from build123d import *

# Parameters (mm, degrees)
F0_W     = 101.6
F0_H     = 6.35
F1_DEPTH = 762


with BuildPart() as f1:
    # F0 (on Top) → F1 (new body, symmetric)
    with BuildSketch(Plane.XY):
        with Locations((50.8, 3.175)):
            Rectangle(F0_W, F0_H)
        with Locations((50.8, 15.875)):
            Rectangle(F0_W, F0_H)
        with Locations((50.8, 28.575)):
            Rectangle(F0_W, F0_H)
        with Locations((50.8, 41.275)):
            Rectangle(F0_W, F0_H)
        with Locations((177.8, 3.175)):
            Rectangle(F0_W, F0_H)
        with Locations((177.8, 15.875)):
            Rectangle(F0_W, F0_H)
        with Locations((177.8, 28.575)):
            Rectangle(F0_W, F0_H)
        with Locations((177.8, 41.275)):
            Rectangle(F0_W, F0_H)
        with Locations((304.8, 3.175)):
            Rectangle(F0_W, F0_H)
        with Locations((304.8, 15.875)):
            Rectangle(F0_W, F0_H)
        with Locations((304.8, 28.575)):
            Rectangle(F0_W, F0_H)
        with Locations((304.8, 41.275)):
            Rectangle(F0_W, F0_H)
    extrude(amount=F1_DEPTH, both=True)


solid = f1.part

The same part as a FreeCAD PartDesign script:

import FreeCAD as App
import Part
import Sketcher

V = App.Vector
Q = App.Units.Quantity

doc = App.newDocument("Part")
body = doc.addObject("PartDesign::Body", "Body")
body.AllowCompound = True

sketch1 = body.newObject("Sketcher::SketchObject", "Sketch")
sketch1.AttachmentSupport = (doc.getObject("XY_Plane"), [""])
sketch1.MapMode = "FlatFace"
sketch1.addGeometry(Part.LineSegment(V(0, 6.35, 0), V(0, 0, 0)), False)
sketch1.addGeometry(Part.LineSegment(V(0, 0, 0), V(101.6, 0, 0)), False)
sketch1.addGeometry(Part.LineSegment(V(101.6, 0, 0), V(101.6, 6.35, 0)), False)
sketch1.addGeometry(Part.LineSegment(V(101.6, 6.35, 0), V(0, 6.35, 0)), False)
sketch1.addGeometry(Part.LineSegment(V(0, 19.05, 0), V(0, 12.7, 0)), False)
sketch1.addGeometry(Part.LineSegment(V(0, 12.7, 0), V(101.6, 12.7, 0)), False)
sketch1.addGeometry(Part.LineSegment(V(101.6, 12.7, 0), V(101.6, 19.05, 0)), False)
sketch1.addGeometry(Part.LineSegment(V(101.6, 19.05, 0), V(0, 19.05, 0)), False)
sketch1.addGeometry(Part.LineSegment(V(0, 31.75, 0), V(0, 25.4, 0)), False)
sketch1.addGeometry(Part.LineSegment(V(0, 25.4, 0), V(101.6, 25.4, 0)), False)
sketch1.addGeometry(Part.LineSegment(V(101.6, 25.4, 0), V(101.6, 31.75, 0)), False)
sketch1.addGeometry(Part.LineSegment(V(101.6, 31.75, 0), V(0, 31.75, 0)), False)
sketch1.addGeometry(Part.LineSegment(V(0, 44.45, 0), V(0, 38.1, 0)), False)
sketch1.addGeometry(Part.LineSegment(V(0, 38.1, 0), V(101.6, 38.1, 0)), False)
sketch1.addGeometry(Part.LineSegment(V(101.6, 38.1, 0), V(101.6, 44.45, 0)), False)
sketch1.addGeometry(Part.LineSegment(V(101.6, 44.45, 0), V(0, 44.45, 0)), False)
sketch1.addGeometry(Part.LineSegment(V(127, 6.35, 0), V(127, 0, 0)), False)
sketch1.addGeometry(Part.LineSegment(V(127, 0, 0), V(228.6, 0, 0)), False)
sketch1.addGeometry(Part.LineSegment(V(228.6, 0, 0), V(228.6, 6.35, 0)), False)
sketch1.addGeometry(Part.LineSegment(V(228.6, 6.35, 0), V(127, 6.35, 0)), False)
sketch1.addGeometry(Part.LineSegment(V(127, 19.05, 0), V(127, 12.7, 0)), False)
sketch1.addGeometry(Part.LineSegment(V(127, 12.7, 0), V(228.6, 12.7, 0)), False)
sketch1.addGeometry(Part.LineSegment(V(228.6, 12.7, 0), V(228.6, 19.05, 0)), False)
sketch1.addGeometry(Part.LineSegment(V(228.6, 19.05, 0), V(127, 19.05, 0)), False)
sketch1.addGeometry(Part.LineSegment(V(127, 31.75, 0), V(127, 25.4, 0)), False)
sketch1.addGeometry(Part.LineSegment(V(127, 25.4, 0), V(228.6, 25.4, 0)), False)
sketch1.addGeometry(Part.LineSegment(V(228.6, 25.4, 0), V(228.6, 31.75, 0)), False)
sketch1.addGeometry(Part.LineSegment(V(228.6, 31.75, 0), V(127, 31.75, 0)), False)
sketch1.addGeometry(Part.LineSegment(V(127, 44.45, 0), V(127, 38.1, 0)), False)
sketch1.addGeometry(Part.LineSegment(V(127, 38.1, 0), V(228.6, 38.1, 0)), False)
sketch1.addGeometry(Part.LineSegment(V(228.6, 38.1, 0), V(228.6, 44.45, 0)), False)
sketch1.addGeometry(Part.LineSegment(V(228.6, 44.45, 0), V(127, 44.45, 0)), False)
sketch1.addGeometry(Part.LineSegment(V(254, 6.35, 0), V(254, 0, 0)), False)
sketch1.addGeometry(Part.LineSegment(V(254, 0, 0), V(355.6, 0, 0)), False)
sketch1.addGeometry(Part.LineSegment(V(355.6, 0, 0), V(355.6, 6.35, 0)), False)
sketch1.addGeometry(Part.LineSegment(V(355.6, 6.35, 0), V(254, 6.35, 0)), False)
sketch1.addGeometry(Part.LineSegment(V(254, 19.05, 0), V(254, 12.7, 0)), False)
sketch1.addGeometry(Part.LineSegment(V(254, 12.7, 0), V(355.6, 12.7, 0)), False)
sketch1.addGeometry(Part.LineSegment(V(355.6, 12.7, 0), V(355.6, 19.05, 0)), False)
sketch1.addGeometry(Part.LineSegment(V(355.6, 19.05, 0), V(254, 19.05, 0)), False)
sketch1.addGeometry(Part.LineSegment(V(254, 31.75, 0), V(254, 25.4, 0)), False)
sketch1.addGeometry(Part.LineSegment(V(254, 25.4, 0), V(355.6, 25.4, 0)), False)
sketch1.addGeometry(Part.LineSegment(V(355.6, 25.4, 0), V(355.6, 31.75, 0)), False)
sketch1.addGeometry(Part.LineSegment(V(355.6, 31.75, 0), V(254, 31.75, 0)), False)
sketch1.addGeometry(Part.LineSegment(V(254, 44.45, 0), V(254, 38.1, 0)), False)
sketch1.addGeometry(Part.LineSegment(V(254, 38.1, 0), V(355.6, 38.1, 0)), False)
sketch1.addGeometry(Part.LineSegment(V(355.6, 38.1, 0), V(355.6, 44.45, 0)), False)
sketch1.addGeometry(Part.LineSegment(V(355.6, 44.45, 0), V(254, 44.45, 0)), False)
sketch1.addConstraint(Sketcher.Constraint("Coincident", 0, 2, 1, 1))
sketch1.addConstraint(Sketcher.Constraint("Coincident", 1, 2, 2, 1))
sketch1.addConstraint(Sketcher.Constraint("Coincident", 2, 2, 3, 1))
sketch1.addConstraint(Sketcher.Constraint("Coincident", 3, 2, 0, 1))
sketch1.addConstraint(Sketcher.Constraint("Coincident", 4, 2, 5, 1))
sketch1.addConstraint(Sketcher.Constraint("Coincident", 5, 2, 6, 1))
sketch1.addConstraint(Sketcher.Constraint("Coincident", 6, 2, 7, 1))
sketch1.addConstraint(Sketcher.Constraint("Coincident", 7, 2, 4, 1))
sketch1.addConstraint(Sketcher.Constraint("Coincident", 8, 2, 9, 1))
sketch1.addConstraint(Sketcher.Constraint("Coincident", 9, 2, 10, 1))
sketch1.addConstraint(Sketcher.Constraint("Coincident", 10, 2, 11, 1))
sketch1.addConstraint(Sketcher.Constraint("Coincident", 11, 2, 8, 1))
sketch1.addConstraint(Sketcher.Constraint("Coincident", 12, 2, 13, 1))
sketch1.addConstraint(Sketcher.Constraint("Coincident", 13, 2, 14, 1))
sketch1.addConstraint(Sketcher.Constraint("Coincident", 14, 2, 15, 1))
sketch1.addConstraint(Sketcher.Constraint("Coincident", 15, 2, 12, 1))
sketch1.addConstraint(Sketcher.Constraint("Coincident", 16, 2, 17, 1))
sketch1.addConstraint(Sketcher.Constraint("Coincident", 17, 2, 18, 1))
sketch1.addConstraint(Sketcher.Constraint("Coincident", 18, 2, 19, 1))
sketch1.addConstraint(Sketcher.Constraint("Coincident", 19, 2, 16, 1))
sketch1.addConstraint(Sketcher.Constraint("Coincident", 20, 2, 21, 1))
sketch1.addConstraint(Sketcher.Constraint("Coincident", 21, 2, 22, 1))
sketch1.addConstraint(Sketcher.Constraint("Coincident", 22, 2, 23, 1))
sketch1.addConstraint(Sketcher.Constraint("Coincident", 23, 2, 20, 1))
sketch1.addConstraint(Sketcher.Constraint("Coincident", 24, 2, 25, 1))
sketch1.addConstraint(Sketcher.Constraint("Coincident", 25, 2, 26, 1))
sketch1.addConstraint(Sketcher.Constraint("Coincident", 26, 2, 27, 1))
sketch1.addConstraint(Sketcher.Constraint("Coincident", 27, 2, 24, 1))
sketch1.addConstraint(Sketcher.Constraint("Coincident", 28, 2, 29, 1))
sketch1.addConstraint(Sketcher.Constraint("Coincident", 29, 2, 30, 1))
sketch1.addConstraint(Sketcher.Constraint("Coincident", 30, 2, 31, 1))
sketch1.addConstraint(Sketcher.Constraint("Coincident", 31, 2, 28, 1))
sketch1.addConstraint(Sketcher.Constraint("Coincident", 32, 2, 33, 1))
sketch1.addConstraint(Sketcher.Constraint("Coincident", 33, 2, 34, 1))
sketch1.addConstraint(Sketcher.Constraint("Coincident", 34, 2, 35, 1))
sketch1.addConstraint(Sketcher.Constraint("Coincident", 35, 2, 32, 1))
sketch1.addConstraint(Sketcher.Constraint("Coincident", 36, 2, 37, 1))
sketch1.addConstraint(Sketcher.Constraint("Coincident", 37, 2, 38, 1))
sketch1.addConstraint(Sketcher.Constraint("Coincident", 38, 2, 39, 1))
sketch1.addConstraint(Sketcher.Constraint("Coincident", 39, 2, 36, 1))
sketch1.addConstraint(Sketcher.Constraint("Coincident", 40, 2, 41, 1))
sketch1.addConstraint(Sketcher.Constraint("Coincident", 41, 2, 42, 1))
sketch1.addConstraint(Sketcher.Constraint("Coincident", 42, 2, 43, 1))
sketch1.addConstraint(Sketcher.Constraint("Coincident", 43, 2, 40, 1))
sketch1.addConstraint(Sketcher.Constraint("Coincident", 44, 2, 45, 1))
sketch1.addConstraint(Sketcher.Constraint("Coincident", 45, 2, 46, 1))
sketch1.addConstraint(Sketcher.Constraint("Coincident", 46, 2, 47, 1))
sketch1.addConstraint(Sketcher.Constraint("Coincident", 47, 2, 44, 1))
sketch1.addConstraint(Sketcher.Constraint("Vertical", 0))
sketch1.addConstraint(Sketcher.Constraint("Horizontal", 1))
sketch1.addConstraint(Sketcher.Constraint("Vertical", 2))
sketch1.addConstraint(Sketcher.Constraint("Horizontal", 3))
sketch1.addConstraint(Sketcher.Constraint("Vertical", 4))
sketch1.addConstraint(Sketcher.Constraint("Horizontal", 5))
sketch1.addConstraint(Sketcher.Constraint("Vertical", 6))
sketch1.addConstraint(Sketcher.Constraint("Horizontal", 7))
sketch1.addConstraint(Sketcher.Constraint("Vertical", 8))
sketch1.addConstraint(Sketcher.Constraint("Horizontal", 9))
sketch1.addConstraint(Sketcher.Constraint("Vertical", 10))
sketch1.addConstraint(Sketcher.Constraint("Horizontal", 11))
sketch1.addConstraint(Sketcher.Constraint("Vertical", 12))
sketch1.addConstraint(Sketcher.Constraint("Horizontal", 13))
sketch1.addConstraint(Sketcher.Constraint("Vertical", 14))
sketch1.addConstraint(Sketcher.Constraint("Horizontal", 15))
sketch1.addConstraint(Sketcher.Constraint("Vertical", 16))
sketch1.addConstraint(Sketcher.Constraint("Horizontal", 17))
sketch1.addConstraint(Sketcher.Constraint("Vertical", 18))
sketch1.addConstraint(Sketcher.Constraint("Horizontal", 19))
sketch1.addConstraint(Sketcher.Constraint("Vertical", 20))
sketch1.addConstraint(Sketcher.Constraint("Horizontal", 21))
sketch1.addConstraint(Sketcher.Constraint("Vertical", 22))
sketch1.addConstraint(Sketcher.Constraint("Horizontal", 23))
sketch1.addConstraint(Sketcher.Constraint("Vertical", 24))
sketch1.addConstraint(Sketcher.Constraint("Horizontal", 25))
sketch1.addConstraint(Sketcher.Constraint("Vertical", 26))
sketch1.addConstraint(Sketcher.Constraint("Horizontal", 27))
sketch1.addConstraint(Sketcher.Constraint("Vertical", 28))
sketch1.addConstraint(Sketcher.Constraint("Horizontal", 29))
sketch1.addConstraint(Sketcher.Constraint("Vertical", 30))
sketch1.addConstraint(Sketcher.Constraint("Horizontal", 31))
sketch1.addConstraint(Sketcher.Constraint("Vertical", 32))
sketch1.addConstraint(Sketcher.Constraint("Horizontal", 33))
sketch1.addConstraint(Sketcher.Constraint("Vertical", 34))
sketch1.addConstraint(Sketcher.Constraint("Horizontal", 35))
sketch1.addConstraint(Sketcher.Constraint("Vertical", 36))
sketch1.addConstraint(Sketcher.Constraint("Horizontal", 37))
sketch1.addConstraint(Sketcher.Constraint("Vertical", 38))
sketch1.addConstraint(Sketcher.Constraint("Horizontal", 39))
sketch1.addConstraint(Sketcher.Constraint("Vertical", 40))
sketch1.addConstraint(Sketcher.Constraint("Horizontal", 41))
sketch1.addConstraint(Sketcher.Constraint("Vertical", 42))
sketch1.addConstraint(Sketcher.Constraint("Horizontal", 43))
sketch1.addConstraint(Sketcher.Constraint("Vertical", 44))
sketch1.addConstraint(Sketcher.Constraint("Horizontal", 45))
sketch1.addConstraint(Sketcher.Constraint("Vertical", 46))
sketch1.addConstraint(Sketcher.Constraint("Horizontal", 47))
sketch1.addConstraint(Sketcher.Constraint("Coincident", 0, 2, -1, 1))
sketch1.addConstraint(Sketcher.Constraint("PointOnObject", 4, 2, -2))
sketch1.addConstraint(Sketcher.Constraint("PointOnObject", 8, 2, -2))
sketch1.addConstraint(Sketcher.Constraint("PointOnObject", 12, 2, -2))
sketch1.addConstraint(Sketcher.Constraint("PointOnObject", 16, 2, -1))
sketch1.addConstraint(Sketcher.Constraint("PointOnObject", 32, 2, -1))
sketch1.addConstraint(Sketcher.Constraint("Horizontal", 3, 2, 18, 2))
sketch1.addConstraint(Sketcher.Constraint("Horizontal", 5, 2, 20, 2))
sketch1.addConstraint(Sketcher.Constraint("Horizontal", 7, 2, 22, 2))
sketch1.addConstraint(Sketcher.Constraint("Horizontal", 9, 2, 24, 2))
sketch1.addConstraint(Sketcher.Constraint("Horizontal", 11, 2, 26, 2))
sketch1.addConstraint(Sketcher.Constraint("Horizontal", 13, 2, 28, 2))
sketch1.addConstraint(Sketcher.Constraint("Horizontal", 15, 2, 30, 2))
sketch1.addConstraint(Sketcher.Constraint("Horizontal", 19, 2, 34, 2))
sketch1.addConstraint(Sketcher.Constraint("Horizontal", 21, 2, 36, 2))
sketch1.addConstraint(Sketcher.Constraint("Horizontal", 23, 2, 38, 2))
sketch1.addConstraint(Sketcher.Constraint("Horizontal", 25, 2, 40, 2))
sketch1.addConstraint(Sketcher.Constraint("Horizontal", 27, 2, 42, 2))
sketch1.addConstraint(Sketcher.Constraint("Horizontal", 29, 2, 44, 2))
sketch1.addConstraint(Sketcher.Constraint("Horizontal", 31, 2, 46, 2))
sketch1.addConstraint(Sketcher.Constraint("Vertical", 2, 2, 5, 2))
sketch1.addConstraint(Sketcher.Constraint("Vertical", 6, 2, 9, 2))
sketch1.addConstraint(Sketcher.Constraint("Vertical", 10, 2, 13, 2))
sketch1.addConstraint(Sketcher.Constraint("Vertical", 19, 2, 20, 2))
sketch1.addConstraint(Sketcher.Constraint("Vertical", 18, 2, 21, 2))
sketch1.addConstraint(Sketcher.Constraint("Vertical", 23, 2, 24, 2))
sketch1.addConstraint(Sketcher.Constraint("Vertical", 22, 2, 25, 2))
sketch1.addConstraint(Sketcher.Constraint("Vertical", 27, 2, 28, 2))
sketch1.addConstraint(Sketcher.Constraint("Vertical", 26, 2, 29, 2))
sketch1.addConstraint(Sketcher.Constraint("Vertical", 35, 2, 36, 2))
sketch1.addConstraint(Sketcher.Constraint("Vertical", 34, 2, 37, 2))
sketch1.addConstraint(Sketcher.Constraint("Vertical", 39, 2, 40, 2))
sketch1.addConstraint(Sketcher.Constraint("Vertical", 38, 2, 41, 2))
sketch1.addConstraint(Sketcher.Constraint("Vertical", 43, 2, 44, 2))
sketch1.addConstraint(Sketcher.Constraint("Vertical", 42, 2, 45, 2))
sketch1.addConstraint(Sketcher.Constraint("Equal", 15, 17))
sketch1.addConstraint(Sketcher.Constraint("Equal", 31, 33))
sketch1.addConstraint(Sketcher.Constraint("Equal", 2, 4))
sketch1.addConstraint(Sketcher.Constraint("Equal", 6, 8))
sketch1.addConstraint(Sketcher.Constraint("Equal", 10, 12))
sketch1.addConstraint(Sketcher.Constraint("DistanceX", 1, 1, 1, 2, Q("4 in")))
sketch1.addConstraint(Sketcher.Constraint("DistanceY", -1, 1, 8, 2, Q("1 in")))
sketch1.addConstraint(Sketcher.Constraint("DistanceX", -1, 1, 16, 2, Q("5 in")))
sketch1.addConstraint(Sketcher.Constraint("DistanceX", -1, 1, 32, 2, Q("10 in")))
sketch1.addConstraint(Sketcher.Constraint("DistanceY", 4, 2, 12, 2, Q("1 in")))
sketch1.addConstraint(Sketcher.Constraint("DistanceY", 0, 2, 0, 1, Q("0.25 in")))
sketch1.addConstraint(Sketcher.Constraint("DistanceY", -1, 1, 4, 2, Q("0.5 in")))
pad1 = body.newObject("PartDesign::Pad", "Pad")
pad1.Profile = sketch1
pad1.Length = Q("60 in")
pad1.Midplane = True

doc.recompute()
